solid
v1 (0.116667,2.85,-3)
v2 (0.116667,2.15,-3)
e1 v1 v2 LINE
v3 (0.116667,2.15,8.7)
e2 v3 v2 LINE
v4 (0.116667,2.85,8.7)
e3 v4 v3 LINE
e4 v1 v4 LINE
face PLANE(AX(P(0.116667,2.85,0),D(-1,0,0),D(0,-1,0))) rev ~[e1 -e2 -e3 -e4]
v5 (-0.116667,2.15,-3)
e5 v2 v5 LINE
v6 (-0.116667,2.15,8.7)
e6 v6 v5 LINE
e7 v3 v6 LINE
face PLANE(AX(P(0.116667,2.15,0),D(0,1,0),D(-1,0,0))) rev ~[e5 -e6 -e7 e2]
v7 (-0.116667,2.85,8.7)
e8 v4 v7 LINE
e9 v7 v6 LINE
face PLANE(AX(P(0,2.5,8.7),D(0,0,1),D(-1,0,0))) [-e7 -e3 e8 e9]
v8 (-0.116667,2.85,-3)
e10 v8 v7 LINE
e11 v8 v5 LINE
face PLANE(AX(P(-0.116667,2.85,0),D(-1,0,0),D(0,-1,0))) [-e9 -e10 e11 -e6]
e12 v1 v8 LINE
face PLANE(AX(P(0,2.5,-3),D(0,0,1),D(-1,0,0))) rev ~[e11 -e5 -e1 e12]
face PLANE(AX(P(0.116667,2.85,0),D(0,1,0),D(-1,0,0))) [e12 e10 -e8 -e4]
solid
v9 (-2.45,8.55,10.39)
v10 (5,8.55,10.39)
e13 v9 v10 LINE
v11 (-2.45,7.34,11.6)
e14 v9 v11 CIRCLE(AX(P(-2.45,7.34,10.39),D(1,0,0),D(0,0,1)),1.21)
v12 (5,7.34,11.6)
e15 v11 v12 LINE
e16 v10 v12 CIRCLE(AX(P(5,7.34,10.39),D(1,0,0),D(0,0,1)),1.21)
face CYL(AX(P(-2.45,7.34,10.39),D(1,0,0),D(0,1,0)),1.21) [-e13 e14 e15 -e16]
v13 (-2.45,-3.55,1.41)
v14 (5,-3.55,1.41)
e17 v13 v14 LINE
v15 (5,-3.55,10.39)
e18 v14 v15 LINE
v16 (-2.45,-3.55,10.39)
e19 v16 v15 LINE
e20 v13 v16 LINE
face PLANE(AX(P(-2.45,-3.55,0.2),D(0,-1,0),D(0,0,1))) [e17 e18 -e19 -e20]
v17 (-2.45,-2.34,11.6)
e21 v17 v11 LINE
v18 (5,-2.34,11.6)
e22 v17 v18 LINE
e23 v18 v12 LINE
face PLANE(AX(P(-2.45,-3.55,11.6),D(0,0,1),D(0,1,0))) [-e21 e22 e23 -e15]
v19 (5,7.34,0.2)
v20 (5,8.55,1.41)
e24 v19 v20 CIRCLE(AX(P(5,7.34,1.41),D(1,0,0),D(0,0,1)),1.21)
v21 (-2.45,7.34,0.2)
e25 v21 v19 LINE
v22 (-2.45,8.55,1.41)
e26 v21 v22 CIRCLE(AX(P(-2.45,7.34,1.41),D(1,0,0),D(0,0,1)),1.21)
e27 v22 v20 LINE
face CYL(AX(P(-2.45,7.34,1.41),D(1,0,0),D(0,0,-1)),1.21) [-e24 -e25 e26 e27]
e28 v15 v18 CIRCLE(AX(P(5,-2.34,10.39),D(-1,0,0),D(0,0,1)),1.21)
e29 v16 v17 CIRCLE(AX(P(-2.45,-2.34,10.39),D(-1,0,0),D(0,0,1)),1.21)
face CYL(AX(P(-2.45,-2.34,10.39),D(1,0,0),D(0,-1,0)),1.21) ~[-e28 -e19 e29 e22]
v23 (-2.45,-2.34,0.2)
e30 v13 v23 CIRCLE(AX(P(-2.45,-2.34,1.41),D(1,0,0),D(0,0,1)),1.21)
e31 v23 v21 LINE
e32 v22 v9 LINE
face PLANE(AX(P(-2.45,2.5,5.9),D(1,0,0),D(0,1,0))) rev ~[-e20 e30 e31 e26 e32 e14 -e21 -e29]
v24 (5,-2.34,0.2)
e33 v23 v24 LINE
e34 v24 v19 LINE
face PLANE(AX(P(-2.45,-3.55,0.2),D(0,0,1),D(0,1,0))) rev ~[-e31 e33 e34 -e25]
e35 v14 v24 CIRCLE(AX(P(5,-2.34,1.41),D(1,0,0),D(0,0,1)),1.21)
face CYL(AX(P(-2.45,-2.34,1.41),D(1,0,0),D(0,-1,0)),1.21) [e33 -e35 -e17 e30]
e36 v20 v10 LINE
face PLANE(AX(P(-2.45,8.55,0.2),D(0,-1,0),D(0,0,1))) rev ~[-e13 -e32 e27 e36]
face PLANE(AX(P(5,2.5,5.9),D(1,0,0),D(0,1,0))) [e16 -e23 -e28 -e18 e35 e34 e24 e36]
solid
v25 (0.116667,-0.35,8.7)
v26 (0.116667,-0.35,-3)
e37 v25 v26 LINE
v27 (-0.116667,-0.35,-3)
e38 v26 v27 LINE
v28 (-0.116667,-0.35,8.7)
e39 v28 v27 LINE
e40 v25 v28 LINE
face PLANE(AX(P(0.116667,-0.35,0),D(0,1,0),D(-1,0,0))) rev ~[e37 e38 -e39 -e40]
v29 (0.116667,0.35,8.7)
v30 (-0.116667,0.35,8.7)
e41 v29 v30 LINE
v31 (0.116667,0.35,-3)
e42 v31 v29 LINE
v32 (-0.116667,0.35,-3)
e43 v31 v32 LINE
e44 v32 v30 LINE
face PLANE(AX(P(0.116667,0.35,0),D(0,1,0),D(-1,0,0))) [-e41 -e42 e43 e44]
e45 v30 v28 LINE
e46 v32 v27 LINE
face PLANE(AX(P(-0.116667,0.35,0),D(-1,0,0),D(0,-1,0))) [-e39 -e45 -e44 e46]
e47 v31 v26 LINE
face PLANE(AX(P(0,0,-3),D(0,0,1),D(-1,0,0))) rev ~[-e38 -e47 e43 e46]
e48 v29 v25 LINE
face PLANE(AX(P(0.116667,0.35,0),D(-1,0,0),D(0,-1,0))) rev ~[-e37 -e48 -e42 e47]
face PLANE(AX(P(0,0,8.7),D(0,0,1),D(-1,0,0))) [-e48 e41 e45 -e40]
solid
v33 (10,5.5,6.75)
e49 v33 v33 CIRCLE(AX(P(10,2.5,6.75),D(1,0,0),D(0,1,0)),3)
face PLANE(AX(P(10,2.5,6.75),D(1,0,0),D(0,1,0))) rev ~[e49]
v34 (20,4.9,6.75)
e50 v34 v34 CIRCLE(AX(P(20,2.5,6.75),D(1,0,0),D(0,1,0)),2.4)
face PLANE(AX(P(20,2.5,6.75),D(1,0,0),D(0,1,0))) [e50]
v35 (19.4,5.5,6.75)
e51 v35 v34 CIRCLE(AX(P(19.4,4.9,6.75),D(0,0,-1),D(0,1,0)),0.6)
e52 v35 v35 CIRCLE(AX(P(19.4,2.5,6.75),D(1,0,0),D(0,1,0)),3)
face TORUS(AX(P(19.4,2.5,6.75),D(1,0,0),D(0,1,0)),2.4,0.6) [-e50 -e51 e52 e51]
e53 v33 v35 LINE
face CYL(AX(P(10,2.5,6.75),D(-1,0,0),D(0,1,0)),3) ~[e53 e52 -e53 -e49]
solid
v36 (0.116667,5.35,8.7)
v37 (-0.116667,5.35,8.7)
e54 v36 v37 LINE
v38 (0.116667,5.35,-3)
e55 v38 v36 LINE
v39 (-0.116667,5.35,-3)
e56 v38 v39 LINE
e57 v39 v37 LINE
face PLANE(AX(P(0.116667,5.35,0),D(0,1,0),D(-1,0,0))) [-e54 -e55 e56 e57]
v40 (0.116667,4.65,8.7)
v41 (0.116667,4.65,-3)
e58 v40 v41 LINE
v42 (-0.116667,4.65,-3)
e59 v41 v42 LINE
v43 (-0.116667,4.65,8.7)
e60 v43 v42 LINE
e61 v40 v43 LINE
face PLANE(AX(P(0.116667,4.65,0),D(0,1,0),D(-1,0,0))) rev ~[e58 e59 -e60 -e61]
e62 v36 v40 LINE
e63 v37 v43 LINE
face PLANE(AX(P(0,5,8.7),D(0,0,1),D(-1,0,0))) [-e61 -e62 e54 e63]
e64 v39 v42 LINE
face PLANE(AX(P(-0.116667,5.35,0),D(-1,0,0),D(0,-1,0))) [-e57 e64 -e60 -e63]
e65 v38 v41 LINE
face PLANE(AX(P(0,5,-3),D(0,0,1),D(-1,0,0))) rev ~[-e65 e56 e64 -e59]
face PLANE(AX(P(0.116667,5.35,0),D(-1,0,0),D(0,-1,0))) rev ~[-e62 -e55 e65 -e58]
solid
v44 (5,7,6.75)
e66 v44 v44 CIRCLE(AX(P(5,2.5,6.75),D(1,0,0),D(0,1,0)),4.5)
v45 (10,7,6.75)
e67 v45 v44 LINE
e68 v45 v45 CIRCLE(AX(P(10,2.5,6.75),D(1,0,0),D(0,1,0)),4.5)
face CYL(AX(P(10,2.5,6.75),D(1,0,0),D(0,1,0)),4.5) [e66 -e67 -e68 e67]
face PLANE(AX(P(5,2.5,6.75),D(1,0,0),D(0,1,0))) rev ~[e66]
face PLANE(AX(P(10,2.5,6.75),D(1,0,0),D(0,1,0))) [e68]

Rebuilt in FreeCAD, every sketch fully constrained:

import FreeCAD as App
import Part
import Sketcher

V = App.Vector


def edges_at(feature, points):
    """Names of the edges that pass closest to the given points."""
    edges = feature.Shape.Edges
    near = lambda p: min(range(len(edges)), key=lambda i: edges[i].distToShape(Part.Vertex(*p))[0])
    return sorted({f"Edge{near(p) + 1}" for p in points})

doc = App.newDocument("Part")
params = doc.addObject("Spreadsheet::Sheet", "Params")
for row, (alias, value) in enumerate([
    ("sketch1_diameter", "9 mm"),
    ("pad1_length", "5 mm"),
    ("sketch2_height", "0.7 mm"),
    ("pad2_length", "8.7 mm"),
    ("pad2_length2", "3 mm"),
    ("sketch3_diameter", "6 mm"),
    ("pad3_length", "10 mm"),
    ("fillet_radius", "0.6 mm"),
    ("sketch4_width", "12.1 mm"),
    ("sketch4_height", "11.4 mm"),
    ("pad4_length", "7.45 mm"),
    ("fillet2_radius", "1.21 mm"),
], start=1):
    params.set(f"A{row}", alias)
    params.set(f"B{row}", "=" + value)
    params.setAlias(f"B{row}", alias)

body = doc.addObject("PartDesign::Body", "Body")

# Sketch on YZ plane
sketch1 = doc.addObject("Sketcher::SketchObject", "Sketch")
body.addObject(sketch1)
sketch1.AttachmentSupport = (doc.YZ_Plane, [""])
sketch1.MapMode = "FlatFace"
sketch1.AttachmentOffset = App.Placement(V(0, 0, 10), App.Rotation())
sketch1.addGeometry(Part.Circle(V(2.5, 6.8, 0), V(0, 0, 1), 4.5), False)
sketch1.addConstraint(Sketcher.Constraint("Diameter", 0, 9.0))
sketch1.addConstraint(Sketcher.Constraint("DistanceX", -1, 1, 0, 3, 2.5))
sketch1.addConstraint(Sketcher.Constraint("DistanceY", -1, 1, 0, 3, 6.75))
sketch1.setExpression("Constraints[0]", "Params.sketch1_diameter")
pad1 = doc.addObject("PartDesign::Pad", "Pad")
body.addObject(pad1)
pad1.Profile = sketch1
pad1.setExpression("Length", "Params.pad1_length")
pad1.Reversed = True
body2 = doc.addObject("PartDesign::Body", "Body001")
body2.AllowCompound = True

# Sketch on XY plane
sketch2 = doc.addObject("Sketcher::SketchObject", "Sketch001")
body2.addObject(sketch2)
sketch2.AttachmentSupport = (doc.getObject("XY_Plane001"), [""])
sketch2.MapMode = "FlatFace"
sketch2.addGeometry(Part.LineSegment(V(0.12, -0.35, 0), V(0.12, 0.35, 0)), False)
sketch2.addGeometry(Part.LineSegment(V(0.12, 0.35, 0), V(-0.12, 0.35, 0)), False)
sketch2.addGeometry(Part.LineSegment(V(-0.12, 0.35, 0), V(-0.12, -0.35, 0)), False)
sketch2.addGeometry(Part.LineSegment(V(-0.12, -0.35, 0), V(0.12, -0.35, 0)), False)
sketch2.addGeometry(Part.LineSegment(V(0.12, 2.15, 0), V(0.12, 2.85, 0)), False)
sketch2.addGeometry(Part.LineSegment(V(0.12, 2.85, 0), V(-0.12, 2.85, 0)), False)
sketch2.addGeometry(Part.LineSegment(V(-0.12, 2.85, 0), V(-0.12, 2.15, 0)), False)
sketch2.addGeometry(Part.LineSegment(V(-0.12, 2.15, 0), V(0.12, 2.15, 0)), False)
sketch2.addGeometry(Part.LineSegment(V(0.12, 4.65, 0), V(0.12, 5.35, 0)), False)
sketch2.addGeometry(Part.LineSegment(V(0.12, 5.35, 0), V(-0.12, 5.35, 0)), False)
sketch2.addGeometry(Part.LineSegment(V(-0.12, 5.35, 0), V(-0.12, 4.65, 0)), False)
sketch2.addGeometry(Part.LineSegment(V(-0.12, 4.65, 0), V(0.12, 4.65, 0)), False)
sketch2.addConstraint(Sketcher.Constraint("Coincident", 0, 2, 1, 1))
sketch2.addConstraint(Sketcher.Constraint("Coincident", 1, 2, 2, 1))
sketch2.addConstraint(Sketcher.Constraint("Coincident", 2, 2, 3, 1))
sketch2.addConstraint(Sketcher.Constraint("Coincident", 3, 2, 0, 1))
sketch2.addConstraint(Sketcher.Constraint("Coincident", 4, 2, 5, 1))
sketch2.addConstraint(Sketcher.Constraint("Coincident", 5, 2, 6, 1))
sketch2.addConstraint(Sketcher.Constraint("Coincident", 6, 2, 7, 1))
sketch2.addConstraint(Sketcher.Constraint("Coincident", 7, 2, 4, 1))
sketch2.addConstraint(Sketcher.Constraint("Coincident", 8, 2, 9, 1))
sketch2.addConstraint(Sketcher.Constraint("Coincident", 9, 2, 10, 1))
sketch2.addConstraint(Sketcher.Constraint("Coincident", 10, 2, 11, 1))
sketch2.addConstraint(Sketcher.Constraint("Coincident", 11, 2, 8, 1))
sketch2.addConstraint(Sketcher.Constraint("Vertical", 0))
sketch2.addConstraint(Sketcher.Constraint("Horizontal", 1))
sketch2.addConstraint(Sketcher.Constraint("Vertical", 2))
sketch2.addConstraint(Sketcher.Constraint("Horizontal", 3))
sketch2.addConstraint(Sketcher.Constraint("Vertical", 4))
sketch2.addConstraint(Sketcher.Constraint("Horizontal", 5))
sketch2.addConstraint(Sketcher.Constraint("Vertical", 6))
sketch2.addConstraint(Sketcher.Constraint("Horizontal", 7))
sketch2.addConstraint(Sketcher.Constraint("Vertical", 8))
sketch2.addConstraint(Sketcher.Constraint("Horizontal", 9))
sketch2.addConstraint(Sketcher.Constraint("Vertical", 10))
sketch2.addConstraint(Sketcher.Constraint("Horizontal", 11))
sketch2.addConstraint(Sketcher.Constraint("Symmetric", 0, 2, 2, 2, -1, 1))
sketch2.addConstraint(Sketcher.Constraint("Vertical", 3, 2, 4, 2))
sketch2.addConstraint(Sketcher.Constraint("Vertical", 2, 2, 5, 2))
sketch2.addConstraint(Sketcher.Constraint("Vertical", 7, 2, 8, 2))
sketch2.addConstraint(Sketcher.Constraint("Vertical", 6, 2, 9, 2))
sketch2.addConstraint(Sketcher.Constraint("Equal", 2, 4))
sketch2.addConstraint(Sketcher.Constraint("Equal", 6, 8))
sketch2.addConstraint(Sketcher.Constraint("DistanceY", 0, 1, 0, 2, 0.7))
sketch2.addConstraint(Sketcher.Constraint("DistanceY", 0, 2, 8, 2, 5.0))
sketch2.addConstraint(Sketcher.Constraint("DistanceY", 0, 2, 4, 2, 2.5))
sketch2.addConstraint(Sketcher.Constraint("DistanceX", 1, 2, 1, 1, 0.233334))
sketch2.setExpression("Constraints[31]", "Params.sketch2_height")
pad2 = doc.addObject("PartDesign::Pad", "Pad001")
body2.addObject(pad2)
pad2.Profile = sketch2
pad2.Type = "TwoLengths"
pad2.setExpression("Length", "Params.pad2_length")
pad2.setExpression("Length2", "Params.pad2_length2")
body3 = doc.addObject("PartDesign::Body", "Body002")

# Sketch on YZ plane
sketch3 = doc.addObject("Sketcher::SketchObject", "Sketch002")
body3.addObject(sketch3)
sketch3.AttachmentSupport = (doc.getObject("YZ_Plane002"), [""])
sketch3.MapMode = "FlatFace"
sketch3.AttachmentOffset = App.Placement(V(0, 0, 10), App.Rotation())
sketch3.addGeometry(Part.Circle(V(2.5, 6.8, 0), V(0, 0, 1), 3), False)
sketch3.addConstraint(Sketcher.Constraint("Diameter", 0, 6.0))
sketch3.addConstraint(Sketcher.Constraint("DistanceX", -1, 1, 0, 3, 2.5))
sketch3.addConstraint(Sketcher.Constraint("DistanceY", -1, 1, 0, 3, 6.75))
sketch3.setExpression("Constraints[0]", "Params.sketch3_diameter")
pad3 = doc.addObject("PartDesign::Pad", "Pad002")
body3.addObject(pad3)
pad3.Profile = sketch3
pad3.setExpression("Length", "Params.pad3_length")
doc.recompute()

fillet = doc.addObject("PartDesign::Fillet", "Fillet")
body3.addObject(fillet)
fillet.Base = (pad3, edges_at(pad3, [(20, -0.5, 6.75)]))
fillet.setExpression("Radius", "Params.fillet_radius")
body4 = doc.addObject("PartDesign::Body", "Body003")

# Sketch on YZ plane
sketch4 = doc.addObject("Sketcher::SketchObject", "Sketch003")
body4.addObject(sketch4)
sketch4.AttachmentSupport = (doc.getObject("YZ_Plane003"), [""])
sketch4.MapMode = "FlatFace"
sketch4.AttachmentOffset = App.Placement(V(0, 0, -2.45), App.Rotation())
sketch4.addGeometry(Part.LineSegment(V(-4, 12, 0), V(-4, 0, 0)), False)
sketch4.addGeometry(Part.LineSegment(V(-4, 0, 0), V(9, 0, 0)), False)
sketch4.addGeometry(Part.LineSegment(V(9, 0, 0), V(9, 12, 0)), False)
sketch4.addGeometry(Part.LineSegment(V(9, 12, 0), V(-4, 12, 0)), False)
sketch4.addConstraint(Sketcher.Constraint("Coincident", 0, 2, 1, 1))
sketch4.addConstraint(Sketcher.Constraint("Coincident", 1, 2, 2, 1))
sketch4.addConstraint(Sketcher.Constraint("Coincident", 2, 2, 3, 1))
sketch4.addConstraint(Sketcher.Constraint("Coincident", 3, 2, 0, 1))
sketch4.addConstraint(Sketcher.Constraint("Vertical", 0))
sketch4.addConstraint(Sketcher.Constraint("Horizontal", 1))
sketch4.addConstraint(Sketcher.Constraint("Vertical", 2))
sketch4.addConstraint(Sketcher.Constraint("Horizontal", 3))
sketch4.addConstraint(Sketcher.Constraint("DistanceX", 1, 1, 1, 2, 12.1))
sketch4.addConstraint(Sketcher.Constraint("DistanceY", 0, 2, 0, 1, 11.4))
sketch4.addConstraint(Sketcher.Constraint("DistanceY", -1, 1, 0, 2, 0.2))
sketch4.addConstraint(Sketcher.Constraint("DistanceX", 0, 2, -1, 1, 3.55))
sketch4.setExpression("Constraints[8]", "Params.sketch4_width")
sketch4.setExpression("Constraints[9]", "Params.sketch4_height")
pad4 = doc.addObject("PartDesign::Pad", "Pad003")
body4.addObject(pad4)
pad4.Profile = sketch4
pad4.setExpression("Length", "Params.pad4_length")
doc.recompute()

fillet2 = doc.addObject("PartDesign::Fillet", "Fillet001")
body4.addObject(fillet2)
fillet2.Base = (pad4, edges_at(pad4, [
    (1.275, -3.55, 11.6),
    (1.275, 8.55, 11.6),
    (1.275, -3.55, 0.2),
    (1.275, 8.55, 0.2),
]))
fillet2.setExpression("Radius", "Params.fillet2_radius")

doc.recompute()
